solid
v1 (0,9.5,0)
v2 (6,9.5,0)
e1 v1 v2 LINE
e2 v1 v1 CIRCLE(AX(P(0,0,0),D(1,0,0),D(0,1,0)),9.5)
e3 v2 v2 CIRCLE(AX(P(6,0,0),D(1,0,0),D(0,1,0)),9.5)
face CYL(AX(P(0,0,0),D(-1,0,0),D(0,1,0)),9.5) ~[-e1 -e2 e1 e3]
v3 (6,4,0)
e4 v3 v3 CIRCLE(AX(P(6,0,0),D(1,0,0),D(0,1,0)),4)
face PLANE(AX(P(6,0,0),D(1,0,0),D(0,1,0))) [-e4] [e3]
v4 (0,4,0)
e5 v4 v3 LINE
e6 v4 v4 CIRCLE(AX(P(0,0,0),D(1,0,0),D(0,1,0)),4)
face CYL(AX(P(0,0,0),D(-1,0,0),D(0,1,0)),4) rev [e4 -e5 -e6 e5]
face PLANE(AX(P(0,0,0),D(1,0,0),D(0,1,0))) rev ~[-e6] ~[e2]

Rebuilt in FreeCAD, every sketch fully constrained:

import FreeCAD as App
import Part
import Sketcher

V = App.Vector

doc = App.newDocument("Part")
body = doc.addObject("PartDesign::Body", "Body")

# Sketch on YZ plane
sketch1 = body.newObject("Sketcher::SketchObject", "Sketch")
sketch1.AttachmentSupport = (doc.getObject("YZ_Plane"), [""])
sketch1.MapMode = "FlatFace"
sketch1.addGeometry([
    Part.Circle(V(0, 0, 0), V(0, 0, 1), 9.5),
    Part.Circle(V(0, 0, 0), V(0, 0, 1), 4),
], False)
sketch1.addConstraint([
    Sketcher.Constraint("Coincident", 0, 3, -1, 1),
    Sketcher.Constraint("Coincident", 1, 3, -1, 1),
    Sketcher.Constraint("Diameter", 0, 19.0),
    Sketcher.Constraint("Diameter", 1, 8.0),
])
pad1 = body.newObject("PartDesign::Pad", "Pad")
pad1.Profile = sketch1
pad1.Length = 6

doc.recompute()
